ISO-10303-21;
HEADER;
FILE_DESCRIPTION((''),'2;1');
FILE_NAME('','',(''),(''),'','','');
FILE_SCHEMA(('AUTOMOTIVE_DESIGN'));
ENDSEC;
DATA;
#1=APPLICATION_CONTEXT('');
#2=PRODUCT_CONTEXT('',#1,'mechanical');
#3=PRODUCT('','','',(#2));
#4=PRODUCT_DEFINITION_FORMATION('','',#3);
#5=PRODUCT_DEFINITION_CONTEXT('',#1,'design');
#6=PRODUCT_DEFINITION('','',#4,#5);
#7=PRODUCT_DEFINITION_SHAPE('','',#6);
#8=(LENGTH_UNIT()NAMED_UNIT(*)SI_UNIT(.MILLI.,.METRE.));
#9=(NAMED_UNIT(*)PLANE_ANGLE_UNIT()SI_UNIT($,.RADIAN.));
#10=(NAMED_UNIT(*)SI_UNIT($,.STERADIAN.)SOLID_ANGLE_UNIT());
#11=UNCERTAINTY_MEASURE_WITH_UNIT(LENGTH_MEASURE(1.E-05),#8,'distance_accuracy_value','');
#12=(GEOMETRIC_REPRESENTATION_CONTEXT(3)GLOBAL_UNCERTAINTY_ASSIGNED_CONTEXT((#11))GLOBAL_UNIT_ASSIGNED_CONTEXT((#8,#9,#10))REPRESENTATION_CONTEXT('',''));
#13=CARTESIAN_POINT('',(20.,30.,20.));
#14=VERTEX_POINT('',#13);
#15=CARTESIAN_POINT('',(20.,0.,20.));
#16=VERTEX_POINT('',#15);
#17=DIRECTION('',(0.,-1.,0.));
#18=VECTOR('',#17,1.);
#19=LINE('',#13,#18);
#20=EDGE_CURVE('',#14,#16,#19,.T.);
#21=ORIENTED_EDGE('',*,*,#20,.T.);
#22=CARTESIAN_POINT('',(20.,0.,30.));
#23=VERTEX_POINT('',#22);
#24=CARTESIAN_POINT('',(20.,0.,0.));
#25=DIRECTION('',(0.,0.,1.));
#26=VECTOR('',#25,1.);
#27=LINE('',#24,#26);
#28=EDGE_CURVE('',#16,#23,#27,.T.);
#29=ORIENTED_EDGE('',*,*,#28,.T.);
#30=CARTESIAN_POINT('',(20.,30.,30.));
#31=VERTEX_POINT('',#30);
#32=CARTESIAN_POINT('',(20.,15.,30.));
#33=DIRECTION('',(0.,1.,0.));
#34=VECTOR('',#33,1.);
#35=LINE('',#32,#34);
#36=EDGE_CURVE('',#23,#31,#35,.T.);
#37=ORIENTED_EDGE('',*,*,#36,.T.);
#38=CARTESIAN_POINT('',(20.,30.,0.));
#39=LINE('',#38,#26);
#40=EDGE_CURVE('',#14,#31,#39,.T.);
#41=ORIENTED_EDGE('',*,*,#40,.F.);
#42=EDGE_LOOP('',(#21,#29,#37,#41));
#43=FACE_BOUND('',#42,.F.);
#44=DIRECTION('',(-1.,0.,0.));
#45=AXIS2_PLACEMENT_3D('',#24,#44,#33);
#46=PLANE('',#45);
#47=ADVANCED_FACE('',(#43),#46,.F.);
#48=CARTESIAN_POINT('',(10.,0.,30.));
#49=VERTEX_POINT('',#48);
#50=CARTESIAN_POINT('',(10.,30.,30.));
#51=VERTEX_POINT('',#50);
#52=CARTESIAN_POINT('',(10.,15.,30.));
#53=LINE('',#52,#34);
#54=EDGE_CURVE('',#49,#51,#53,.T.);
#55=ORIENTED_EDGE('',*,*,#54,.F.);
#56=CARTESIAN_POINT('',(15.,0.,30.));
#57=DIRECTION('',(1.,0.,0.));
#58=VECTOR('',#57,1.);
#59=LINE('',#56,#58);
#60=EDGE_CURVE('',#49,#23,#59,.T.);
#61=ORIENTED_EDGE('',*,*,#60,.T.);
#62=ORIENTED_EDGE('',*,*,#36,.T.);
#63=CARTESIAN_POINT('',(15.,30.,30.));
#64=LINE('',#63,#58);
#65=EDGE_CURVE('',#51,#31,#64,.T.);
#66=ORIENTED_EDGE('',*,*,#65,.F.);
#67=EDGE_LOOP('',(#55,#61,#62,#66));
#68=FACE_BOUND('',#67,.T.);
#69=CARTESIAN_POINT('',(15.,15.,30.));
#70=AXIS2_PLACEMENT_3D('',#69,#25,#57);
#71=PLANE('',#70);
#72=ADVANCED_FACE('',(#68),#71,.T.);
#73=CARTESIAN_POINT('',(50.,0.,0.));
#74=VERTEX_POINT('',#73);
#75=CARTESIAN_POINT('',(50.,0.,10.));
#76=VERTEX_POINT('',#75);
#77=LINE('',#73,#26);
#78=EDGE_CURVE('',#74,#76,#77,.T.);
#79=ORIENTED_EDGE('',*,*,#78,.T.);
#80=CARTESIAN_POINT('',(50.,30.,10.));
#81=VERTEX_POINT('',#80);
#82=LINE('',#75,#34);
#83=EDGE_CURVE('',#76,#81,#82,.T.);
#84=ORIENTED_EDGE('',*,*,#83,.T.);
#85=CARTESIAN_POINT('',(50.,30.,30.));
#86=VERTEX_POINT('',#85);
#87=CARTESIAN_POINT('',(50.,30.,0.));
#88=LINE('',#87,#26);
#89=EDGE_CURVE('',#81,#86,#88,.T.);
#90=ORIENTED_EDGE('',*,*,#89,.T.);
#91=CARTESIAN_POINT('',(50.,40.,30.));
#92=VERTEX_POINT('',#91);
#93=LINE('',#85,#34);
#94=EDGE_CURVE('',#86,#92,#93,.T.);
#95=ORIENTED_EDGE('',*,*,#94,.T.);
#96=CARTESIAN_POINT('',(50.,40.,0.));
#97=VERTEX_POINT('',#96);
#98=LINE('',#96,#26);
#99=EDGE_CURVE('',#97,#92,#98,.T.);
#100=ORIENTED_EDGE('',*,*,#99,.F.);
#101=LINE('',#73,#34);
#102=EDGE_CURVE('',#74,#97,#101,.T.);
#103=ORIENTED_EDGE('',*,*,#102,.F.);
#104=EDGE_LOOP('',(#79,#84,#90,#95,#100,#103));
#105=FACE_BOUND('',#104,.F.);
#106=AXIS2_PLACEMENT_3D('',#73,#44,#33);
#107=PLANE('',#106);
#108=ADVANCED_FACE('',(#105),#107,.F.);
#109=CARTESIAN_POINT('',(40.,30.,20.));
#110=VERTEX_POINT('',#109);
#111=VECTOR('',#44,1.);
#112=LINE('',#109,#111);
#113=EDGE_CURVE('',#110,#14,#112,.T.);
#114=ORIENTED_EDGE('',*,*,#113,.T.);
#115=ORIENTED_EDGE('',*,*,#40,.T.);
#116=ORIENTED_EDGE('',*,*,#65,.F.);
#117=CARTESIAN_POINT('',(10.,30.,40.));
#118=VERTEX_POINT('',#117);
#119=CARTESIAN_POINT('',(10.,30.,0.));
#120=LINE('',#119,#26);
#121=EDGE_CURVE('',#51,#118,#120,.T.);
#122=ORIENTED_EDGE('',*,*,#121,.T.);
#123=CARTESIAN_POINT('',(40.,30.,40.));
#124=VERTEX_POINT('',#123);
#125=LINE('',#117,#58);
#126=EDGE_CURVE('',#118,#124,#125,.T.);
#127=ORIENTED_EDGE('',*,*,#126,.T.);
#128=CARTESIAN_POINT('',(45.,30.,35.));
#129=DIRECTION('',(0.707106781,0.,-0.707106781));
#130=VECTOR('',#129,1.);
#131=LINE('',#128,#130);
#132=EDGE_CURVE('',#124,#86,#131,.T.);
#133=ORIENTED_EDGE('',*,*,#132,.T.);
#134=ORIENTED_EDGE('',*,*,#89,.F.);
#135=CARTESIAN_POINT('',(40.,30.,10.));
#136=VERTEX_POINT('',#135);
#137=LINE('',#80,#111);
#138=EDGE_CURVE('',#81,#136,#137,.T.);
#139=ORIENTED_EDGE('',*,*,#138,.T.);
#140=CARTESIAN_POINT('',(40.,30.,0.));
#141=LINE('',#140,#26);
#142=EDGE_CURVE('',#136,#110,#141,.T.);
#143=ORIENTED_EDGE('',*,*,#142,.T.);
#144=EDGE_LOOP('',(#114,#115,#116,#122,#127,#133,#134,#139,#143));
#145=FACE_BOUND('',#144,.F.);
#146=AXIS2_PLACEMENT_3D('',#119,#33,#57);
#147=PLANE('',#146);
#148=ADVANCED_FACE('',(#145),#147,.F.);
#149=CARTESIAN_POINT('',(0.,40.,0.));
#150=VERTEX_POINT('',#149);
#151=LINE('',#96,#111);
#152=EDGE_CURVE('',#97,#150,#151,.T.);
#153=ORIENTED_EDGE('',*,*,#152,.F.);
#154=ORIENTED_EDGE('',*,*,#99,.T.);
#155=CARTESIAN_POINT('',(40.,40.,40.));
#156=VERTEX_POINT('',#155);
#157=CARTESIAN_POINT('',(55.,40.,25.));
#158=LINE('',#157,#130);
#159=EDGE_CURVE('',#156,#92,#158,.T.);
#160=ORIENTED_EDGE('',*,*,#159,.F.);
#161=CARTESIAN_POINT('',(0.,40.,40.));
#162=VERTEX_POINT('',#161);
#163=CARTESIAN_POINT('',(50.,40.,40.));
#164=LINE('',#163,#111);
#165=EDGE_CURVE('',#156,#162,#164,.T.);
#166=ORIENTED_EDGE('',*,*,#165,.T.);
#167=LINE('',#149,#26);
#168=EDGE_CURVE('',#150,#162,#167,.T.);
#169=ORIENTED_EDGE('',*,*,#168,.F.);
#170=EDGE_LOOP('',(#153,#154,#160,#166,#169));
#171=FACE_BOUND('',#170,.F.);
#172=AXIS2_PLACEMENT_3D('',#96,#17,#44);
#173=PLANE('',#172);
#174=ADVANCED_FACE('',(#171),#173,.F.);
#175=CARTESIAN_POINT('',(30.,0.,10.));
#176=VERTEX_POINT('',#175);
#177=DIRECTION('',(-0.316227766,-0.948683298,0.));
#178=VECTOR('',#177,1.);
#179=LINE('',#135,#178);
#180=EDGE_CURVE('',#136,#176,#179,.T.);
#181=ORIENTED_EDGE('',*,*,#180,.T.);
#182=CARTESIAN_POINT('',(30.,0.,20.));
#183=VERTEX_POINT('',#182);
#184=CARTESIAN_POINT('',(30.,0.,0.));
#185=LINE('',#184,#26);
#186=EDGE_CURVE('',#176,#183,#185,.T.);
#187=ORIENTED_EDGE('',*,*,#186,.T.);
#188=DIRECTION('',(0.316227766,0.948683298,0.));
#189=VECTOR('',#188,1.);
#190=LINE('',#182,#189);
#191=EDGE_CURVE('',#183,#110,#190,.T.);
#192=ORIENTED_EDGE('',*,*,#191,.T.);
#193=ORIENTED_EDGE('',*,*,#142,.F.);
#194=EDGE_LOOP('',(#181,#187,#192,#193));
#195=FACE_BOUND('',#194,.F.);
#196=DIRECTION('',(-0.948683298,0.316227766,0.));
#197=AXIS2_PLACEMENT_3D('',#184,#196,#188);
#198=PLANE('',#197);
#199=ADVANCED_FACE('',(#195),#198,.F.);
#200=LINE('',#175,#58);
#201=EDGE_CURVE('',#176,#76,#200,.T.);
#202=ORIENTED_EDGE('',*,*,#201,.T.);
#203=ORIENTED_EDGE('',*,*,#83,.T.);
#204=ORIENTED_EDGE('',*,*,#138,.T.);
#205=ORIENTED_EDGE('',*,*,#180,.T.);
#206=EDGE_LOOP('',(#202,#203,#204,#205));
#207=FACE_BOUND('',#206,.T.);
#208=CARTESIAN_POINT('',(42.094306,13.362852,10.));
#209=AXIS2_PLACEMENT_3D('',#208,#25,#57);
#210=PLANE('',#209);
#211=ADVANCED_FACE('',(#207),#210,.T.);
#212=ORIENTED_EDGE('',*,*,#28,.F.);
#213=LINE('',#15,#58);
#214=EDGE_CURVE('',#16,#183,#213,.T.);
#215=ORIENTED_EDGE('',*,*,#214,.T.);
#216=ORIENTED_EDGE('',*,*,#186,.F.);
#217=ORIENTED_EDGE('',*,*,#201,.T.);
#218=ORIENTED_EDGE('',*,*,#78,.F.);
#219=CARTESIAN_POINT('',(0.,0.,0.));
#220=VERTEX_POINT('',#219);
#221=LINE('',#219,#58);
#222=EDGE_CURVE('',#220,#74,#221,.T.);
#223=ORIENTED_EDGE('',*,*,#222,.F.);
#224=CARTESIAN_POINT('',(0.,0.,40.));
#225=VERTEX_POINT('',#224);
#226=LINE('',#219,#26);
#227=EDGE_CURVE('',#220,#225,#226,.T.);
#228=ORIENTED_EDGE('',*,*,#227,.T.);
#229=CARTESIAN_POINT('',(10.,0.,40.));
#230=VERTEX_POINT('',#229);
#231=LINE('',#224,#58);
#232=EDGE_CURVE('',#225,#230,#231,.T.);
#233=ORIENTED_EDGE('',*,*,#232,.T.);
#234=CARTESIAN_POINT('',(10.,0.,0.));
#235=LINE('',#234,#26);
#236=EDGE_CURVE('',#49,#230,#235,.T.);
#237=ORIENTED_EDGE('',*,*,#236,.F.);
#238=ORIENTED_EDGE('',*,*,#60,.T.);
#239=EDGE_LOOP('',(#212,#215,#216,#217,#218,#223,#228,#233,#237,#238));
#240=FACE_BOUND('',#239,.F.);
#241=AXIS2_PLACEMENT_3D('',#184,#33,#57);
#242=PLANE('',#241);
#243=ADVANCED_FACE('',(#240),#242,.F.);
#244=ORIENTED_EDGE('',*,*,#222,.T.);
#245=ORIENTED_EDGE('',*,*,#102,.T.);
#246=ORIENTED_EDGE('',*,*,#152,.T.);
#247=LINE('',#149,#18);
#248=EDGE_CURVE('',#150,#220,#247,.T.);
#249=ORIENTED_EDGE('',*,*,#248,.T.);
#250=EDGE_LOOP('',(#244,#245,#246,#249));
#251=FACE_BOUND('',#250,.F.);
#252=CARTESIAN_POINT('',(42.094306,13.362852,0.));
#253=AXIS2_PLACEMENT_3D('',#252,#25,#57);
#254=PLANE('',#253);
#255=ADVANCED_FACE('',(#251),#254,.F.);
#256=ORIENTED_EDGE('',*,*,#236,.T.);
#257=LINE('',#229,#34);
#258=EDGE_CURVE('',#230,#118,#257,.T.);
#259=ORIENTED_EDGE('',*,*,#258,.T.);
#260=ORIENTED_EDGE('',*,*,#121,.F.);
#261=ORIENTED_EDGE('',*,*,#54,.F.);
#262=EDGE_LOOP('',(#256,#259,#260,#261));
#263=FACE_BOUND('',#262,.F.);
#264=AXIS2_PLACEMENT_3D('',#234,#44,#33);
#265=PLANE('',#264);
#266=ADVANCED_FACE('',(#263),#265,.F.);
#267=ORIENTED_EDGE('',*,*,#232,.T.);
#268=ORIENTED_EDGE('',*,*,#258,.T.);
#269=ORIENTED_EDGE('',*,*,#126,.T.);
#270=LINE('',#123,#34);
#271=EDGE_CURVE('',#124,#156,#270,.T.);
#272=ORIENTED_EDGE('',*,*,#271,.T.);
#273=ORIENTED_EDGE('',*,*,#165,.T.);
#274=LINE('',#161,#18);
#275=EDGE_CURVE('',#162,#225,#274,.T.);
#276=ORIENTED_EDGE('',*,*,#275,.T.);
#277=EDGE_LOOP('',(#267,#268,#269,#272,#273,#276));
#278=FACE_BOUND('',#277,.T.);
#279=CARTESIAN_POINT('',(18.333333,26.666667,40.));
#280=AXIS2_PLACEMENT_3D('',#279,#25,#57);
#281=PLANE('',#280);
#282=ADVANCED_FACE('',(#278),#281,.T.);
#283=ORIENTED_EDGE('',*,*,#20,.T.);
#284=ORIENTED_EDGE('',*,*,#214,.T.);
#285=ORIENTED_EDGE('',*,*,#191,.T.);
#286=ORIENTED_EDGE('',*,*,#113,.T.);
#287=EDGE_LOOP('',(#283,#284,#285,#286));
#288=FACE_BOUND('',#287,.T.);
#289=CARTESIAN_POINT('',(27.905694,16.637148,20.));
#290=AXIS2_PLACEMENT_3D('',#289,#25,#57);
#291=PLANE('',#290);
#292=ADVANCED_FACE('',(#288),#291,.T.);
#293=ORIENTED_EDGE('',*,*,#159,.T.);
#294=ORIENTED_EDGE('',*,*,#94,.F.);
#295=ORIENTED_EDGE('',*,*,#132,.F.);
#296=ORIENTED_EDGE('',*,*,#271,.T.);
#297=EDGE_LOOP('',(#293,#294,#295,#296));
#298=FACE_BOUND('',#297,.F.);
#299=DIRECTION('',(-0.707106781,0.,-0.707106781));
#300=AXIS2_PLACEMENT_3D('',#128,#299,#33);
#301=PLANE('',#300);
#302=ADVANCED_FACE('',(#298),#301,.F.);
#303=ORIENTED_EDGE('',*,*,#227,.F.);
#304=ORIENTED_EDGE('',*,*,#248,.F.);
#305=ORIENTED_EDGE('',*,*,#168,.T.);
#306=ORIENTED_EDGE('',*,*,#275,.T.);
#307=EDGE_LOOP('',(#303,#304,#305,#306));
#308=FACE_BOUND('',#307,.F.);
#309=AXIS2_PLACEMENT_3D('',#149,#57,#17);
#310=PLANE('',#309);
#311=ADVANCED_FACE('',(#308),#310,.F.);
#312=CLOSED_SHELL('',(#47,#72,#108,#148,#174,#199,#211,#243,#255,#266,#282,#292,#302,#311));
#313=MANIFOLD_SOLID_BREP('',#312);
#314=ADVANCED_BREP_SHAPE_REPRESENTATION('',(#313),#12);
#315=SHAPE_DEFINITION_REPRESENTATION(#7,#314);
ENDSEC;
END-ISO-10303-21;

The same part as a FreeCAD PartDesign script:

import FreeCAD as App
import Part
import Sketcher
Q = App.Units.Quantity


def edges_at(feature, points):
    """Names of the edges that pass closest to the given points."""
    edges = feature.Shape.Edges
    near = lambda p: min(range(len(edges)), key=lambda i: edges[i].distToShape(Part.Vertex(*p))[0])
    return sorted({f"Edge{near(p) + 1}" for p in points})


def add_polygon(sketch, points):
    """Adds a closed chain of lines whose ends are joined by coincident constraints."""
    first, n = sketch.GeometryCount, len(points)
    for a, b in zip(points, points[1:] + points[:1]):
        sketch.addGeometry(Part.LineSegment(App.Vector(*a, 0), App.Vector(*b, 0)), False)
    for i in range(n):
        sketch.addConstraint(Sketcher.Constraint("Coincident", first + i, 2, first + (i + 1) % n, 1))

doc = App.newDocument("Part")
body = doc.addObject("PartDesign::Body", "Body")

# Sketch on XY plane
sketch1 = doc.addObject("Sketcher::SketchObject", "Sketch")
body.addObject(sketch1)
sketch1.AttachmentSupport = (doc.XY_Plane, [""])
sketch1.MapMode = "FlatFace"
add_polygon(sketch1, [(0, 40), (0, 0), (10, 0), (10, 30), (50, 30), (50, 40)])  # lines 0-5
sketch1.addConstraint([
    Sketcher.Constraint("Vertical", 0),
    Sketcher.Constraint("Horizontal", 1),
    Sketcher.Constraint("Vertical", 2),
    Sketcher.Constraint("Horizontal", 3),
    Sketcher.Constraint("Vertical", 4),
    Sketcher.Constraint("Horizontal", 5),
    Sketcher.Constraint("Coincident", 0, 2, -1, 1),
    Sketcher.Constraint("Equal", 3, 0),
    Sketcher.Constraint("Equal", 1, 4),
    Sketcher.Constraint("DistanceX", 1, 1, 1, 2, Q("10 mm")),
    Sketcher.Constraint("DistanceX", 3, 1, 3, 2, Q("40 mm")),
])
pad1 = doc.addObject("PartDesign::Pad", "Pad")
body.addObject(pad1)
pad1.Profile = sketch1
pad1.Length = 40

# Sketch on XY plane
sketch2 = doc.addObject("Sketcher::SketchObject", "Sketch001")
body.addObject(sketch2)
sketch2.AttachmentSupport = (doc.XY_Plane, [""])
sketch2.MapMode = "FlatFace"
add_polygon(sketch2, [(10, 30), (10, 0), (20, 0), (20, 30)])  # lines 0-3
sketch2.addConstraint([
    Sketcher.Constraint("Vertical", 0),
    Sketcher.Constraint("Horizontal", 1),
    Sketcher.Constraint("Vertical", 2),
    Sketcher.Constraint("Horizontal", 3),
    Sketcher.Constraint("PointOnObject", 0, 2, -1),
    Sketcher.Constraint("DistanceX", 1, 1, 1, 2, Q("10 mm")),
    Sketcher.Constraint("DistanceY", 0, 2, 0, 1, Q("30 mm")),
    Sketcher.Constraint("DistanceX", -1, 1, 0, 2, Q("10 mm")),
])
pad2 = doc.addObject("PartDesign::Pad", "Pad001")
body.addObject(pad2)
pad2.Profile = sketch2
pad2.Length = 30

# Sketch on XY plane
sketch3 = doc.addObject("Sketcher::SketchObject", "Sketch002")
body.addObject(sketch3)
sketch3.AttachmentSupport = (doc.XY_Plane, [""])
sketch3.MapMode = "FlatFace"
add_polygon(sketch3, [(20, 30), (20, 0), (30, 0), (40, 30)])  # lines 0-3
sketch3.addConstraint([
    Sketcher.Constraint("Vertical", 0),
    Sketcher.Constraint("Horizontal", 1),
    Sketcher.Constraint("Horizontal", 3),
    Sketcher.Constraint("PointOnObject", 0, 2, -1),
    Sketcher.Constraint("DistanceX", 1, 1, 1, 2, Q("10 mm")),
    Sketcher.Constraint("DistanceX", 3, 2, 3, 1, Q("20 mm")),
    Sketcher.Constraint("DistanceY", 0, 2, 0, 1, Q("30 mm")),
    Sketcher.Constraint("DistanceX", -1, 1, 0, 2, Q("20 mm")),
])
pad3 = doc.addObject("PartDesign::Pad", "Pad002")
body.addObject(pad3)
pad3.Profile = sketch3
pad3.Length = 20

# Sketch on XY plane
sketch4 = doc.addObject("Sketcher::SketchObject", "Sketch003")
body.addObject(sketch4)
sketch4.AttachmentSupport = (doc.XY_Plane, [""])
sketch4.MapMode = "FlatFace"
add_polygon(sketch4, [(40, 30), (30, 0), (50, 0), (50, 30)])  # lines 0-3
sketch4.addConstraint([
    Sketcher.Constraint("Horizontal", 1),
    Sketcher.Constraint("Vertical", 2),
    Sketcher.Constraint("Horizontal", 3),
    Sketcher.Constraint("PointOnObject", 0, 2, -1),
    Sketcher.Constraint("DistanceX", 1, 1, 1, 2, Q("20 mm")),
    Sketcher.Constraint("DistanceX", 3, 2, 3, 1, Q("10 mm")),
    Sketcher.Constraint("DistanceY", 2, 1, 2, 2, Q("30 mm")),
    Sketcher.Constraint("DistanceX", -1, 1, 0, 2, Q("30 mm")),
])
pad4 = doc.addObject("PartDesign::Pad", "Pad003")
body.addObject(pad4)
pad4.Profile = sketch4
pad4.Length = 10
doc.recompute()

chamfer = doc.addObject("PartDesign::Chamfer", "Chamfer")
body.addObject(chamfer)
chamfer.Base = (pad4, edges_at(pad4, [(50, 35, 40)]))
chamfer.Size = 10

doc.recompute()
